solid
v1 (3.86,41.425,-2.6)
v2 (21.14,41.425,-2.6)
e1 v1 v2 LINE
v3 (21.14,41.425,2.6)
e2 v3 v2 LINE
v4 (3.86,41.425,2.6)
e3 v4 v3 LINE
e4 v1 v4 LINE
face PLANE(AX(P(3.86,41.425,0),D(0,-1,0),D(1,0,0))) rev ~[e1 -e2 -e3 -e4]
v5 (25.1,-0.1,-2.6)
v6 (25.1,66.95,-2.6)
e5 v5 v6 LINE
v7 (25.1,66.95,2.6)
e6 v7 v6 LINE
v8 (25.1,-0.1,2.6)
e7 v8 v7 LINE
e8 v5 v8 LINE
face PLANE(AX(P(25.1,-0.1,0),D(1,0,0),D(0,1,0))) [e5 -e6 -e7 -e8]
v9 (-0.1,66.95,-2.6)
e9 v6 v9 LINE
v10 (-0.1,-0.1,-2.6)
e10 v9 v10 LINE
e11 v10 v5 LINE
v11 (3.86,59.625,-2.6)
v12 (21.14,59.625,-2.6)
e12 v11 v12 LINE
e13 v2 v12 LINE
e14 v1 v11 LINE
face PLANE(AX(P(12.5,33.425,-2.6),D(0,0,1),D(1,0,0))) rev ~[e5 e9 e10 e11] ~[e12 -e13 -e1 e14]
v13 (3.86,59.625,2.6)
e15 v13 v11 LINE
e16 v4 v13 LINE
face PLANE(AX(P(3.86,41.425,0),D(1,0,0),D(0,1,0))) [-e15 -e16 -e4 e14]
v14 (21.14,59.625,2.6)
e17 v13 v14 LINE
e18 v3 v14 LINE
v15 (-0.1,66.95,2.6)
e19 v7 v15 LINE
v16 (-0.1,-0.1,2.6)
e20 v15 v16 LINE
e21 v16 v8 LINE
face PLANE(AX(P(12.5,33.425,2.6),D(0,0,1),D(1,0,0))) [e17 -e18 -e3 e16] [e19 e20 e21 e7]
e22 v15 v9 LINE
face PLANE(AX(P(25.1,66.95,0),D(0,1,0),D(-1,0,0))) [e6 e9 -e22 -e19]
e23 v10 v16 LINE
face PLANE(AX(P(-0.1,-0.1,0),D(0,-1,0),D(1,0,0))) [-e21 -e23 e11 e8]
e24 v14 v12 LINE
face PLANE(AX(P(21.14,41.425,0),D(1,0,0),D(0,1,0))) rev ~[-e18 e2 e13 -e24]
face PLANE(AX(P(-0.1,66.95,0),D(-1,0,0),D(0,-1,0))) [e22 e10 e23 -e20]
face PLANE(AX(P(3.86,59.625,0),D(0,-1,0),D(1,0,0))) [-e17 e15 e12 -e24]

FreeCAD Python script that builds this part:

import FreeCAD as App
import Part
import Sketcher
Q = App.Units.Quantity

doc = App.newDocument("Part")
body = doc.addObject("PartDesign::Body", "Body")

# Sketch on XY plane
sketch1 = body.newObject("Sketcher::SketchObject", "Sketch")
sketch1.AttachmentSupport = (doc.getObject("XY_Plane"), [""])
sketch1.MapMode = "FlatFace"
sketch1.addGeometry([
    Part.LineSegment(App.Vector(0, 67, 0), App.Vector(0, 0, 0)),  # 0
    Part.LineSegment(App.Vector(0, 0, 0), App.Vector(25, 0, 0)),  # 1
    Part.LineSegment(App.Vector(25, 0, 0), App.Vector(25, 67, 0)),  # 2
    Part.LineSegment(App.Vector(25, 67, 0), App.Vector(0, 67, 0)),  # 3
    Part.LineSegment(App.Vector(21, 41, 0), App.Vector(4, 41, 0)),  # 4
    Part.LineSegment(App.Vector(4, 41, 0), App.Vector(4, 60, 0)),  # 5
    Part.LineSegment(App.Vector(4, 60, 0), App.Vector(21, 60, 0)),  # 6
    Part.LineSegment(App.Vector(21, 60, 0), App.Vector(21, 41, 0)),  # 7
], False)
sketch1.addConstraint([
    Sketcher.Constraint("Coincident", 0, 2, 1, 1),
    Sketcher.Constraint("Coincident", 1, 2, 2, 1),
    Sketcher.Constraint("Coincident", 2, 2, 3, 1),
    Sketcher.Constraint("Coincident", 3, 2, 0, 1),
    Sketcher.Constraint("Coincident", 4, 2, 5, 1),
    Sketcher.Constraint("Coincident", 5, 2, 6, 1),
    Sketcher.Constraint("Coincident", 6, 2, 7, 1),
    Sketcher.Constraint("Coincident", 7, 2, 4, 1),
    Sketcher.Constraint("Vertical", 0),
    Sketcher.Constraint("Horizontal", 1),
    Sketcher.Constraint("Vertical", 2),
    Sketcher.Constraint("Horizontal", 3),
    Sketcher.Constraint("Horizontal", 4),
    Sketcher.Constraint("Vertical", 5),
    Sketcher.Constraint("Horizontal", 6),
    Sketcher.Constraint("Vertical", 7),
    Sketcher.Constraint("DistanceX", 1, 1, 1, 2, Q("25.2 mm")),
    Sketcher.Constraint("DistanceY", 5, 1, 5, 2, Q("18.2 mm")),
    Sketcher.Constraint("DistanceX", 4, 2, 4, 1, Q("17.28 mm")),
    Sketcher.Constraint("DistanceY", 0, 2, 0, 1, Q("67.05 mm")),
    Sketcher.Constraint("DistanceX", 0, 2, -1, 1, Q("0.1 mm")),
    Sketcher.Constraint("DistanceY", 0, 2, -1, 1, Q("0.1 mm")),
    Sketcher.Constraint("DistanceX", -1, 1, 4, 2, Q("3.86 mm")),
    Sketcher.Constraint("DistanceY", -1, 1, 4, 2, Q("41.425 mm")),
])
pad1 = body.newObject("PartDesign::Pad", "Pad")
pad1.Profile = sketch1
pad1.Length = 5.2
pad1.Midplane = True

doc.recompute()
